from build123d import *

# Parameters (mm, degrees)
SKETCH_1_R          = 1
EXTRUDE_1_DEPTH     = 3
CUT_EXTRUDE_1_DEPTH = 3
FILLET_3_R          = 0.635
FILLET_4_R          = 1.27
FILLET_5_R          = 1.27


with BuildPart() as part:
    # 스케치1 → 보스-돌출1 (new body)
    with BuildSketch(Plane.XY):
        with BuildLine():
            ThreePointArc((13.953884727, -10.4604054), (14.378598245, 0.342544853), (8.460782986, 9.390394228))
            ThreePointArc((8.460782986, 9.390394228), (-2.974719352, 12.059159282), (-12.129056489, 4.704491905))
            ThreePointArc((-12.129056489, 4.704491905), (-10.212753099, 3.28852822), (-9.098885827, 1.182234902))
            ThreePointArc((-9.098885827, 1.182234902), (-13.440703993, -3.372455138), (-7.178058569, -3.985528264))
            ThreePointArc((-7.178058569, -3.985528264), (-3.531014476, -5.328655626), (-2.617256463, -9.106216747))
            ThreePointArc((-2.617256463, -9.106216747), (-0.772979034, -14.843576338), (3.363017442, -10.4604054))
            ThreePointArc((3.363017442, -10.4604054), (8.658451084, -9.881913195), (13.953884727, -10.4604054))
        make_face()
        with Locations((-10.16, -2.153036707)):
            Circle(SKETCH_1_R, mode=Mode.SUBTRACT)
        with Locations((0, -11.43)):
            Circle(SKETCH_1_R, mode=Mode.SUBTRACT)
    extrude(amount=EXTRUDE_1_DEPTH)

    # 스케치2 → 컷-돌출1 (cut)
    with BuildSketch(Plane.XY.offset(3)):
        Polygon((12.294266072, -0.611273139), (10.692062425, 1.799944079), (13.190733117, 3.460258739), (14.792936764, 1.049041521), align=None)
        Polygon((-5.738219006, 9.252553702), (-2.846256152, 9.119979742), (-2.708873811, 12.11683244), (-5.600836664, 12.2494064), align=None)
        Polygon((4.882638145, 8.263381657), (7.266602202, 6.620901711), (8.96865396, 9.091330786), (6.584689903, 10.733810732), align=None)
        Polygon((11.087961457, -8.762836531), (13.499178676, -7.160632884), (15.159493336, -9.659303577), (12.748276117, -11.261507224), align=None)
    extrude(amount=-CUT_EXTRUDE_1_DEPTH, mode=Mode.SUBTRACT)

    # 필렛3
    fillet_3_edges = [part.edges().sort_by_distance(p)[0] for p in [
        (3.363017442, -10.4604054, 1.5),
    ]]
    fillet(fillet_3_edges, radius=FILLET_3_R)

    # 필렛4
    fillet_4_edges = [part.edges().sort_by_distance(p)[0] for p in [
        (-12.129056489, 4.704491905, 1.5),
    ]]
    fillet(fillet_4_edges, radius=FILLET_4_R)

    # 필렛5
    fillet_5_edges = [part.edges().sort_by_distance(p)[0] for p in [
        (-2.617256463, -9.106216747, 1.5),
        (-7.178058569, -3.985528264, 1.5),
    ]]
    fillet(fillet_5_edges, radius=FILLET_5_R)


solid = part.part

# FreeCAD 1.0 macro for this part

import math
import FreeCAD as App
import Part
import Sketcher
from FreeCAD import Vector
Q = App.Units.Quantity


def edges_at(feature, points):
    """Names of the edges that pass closest to the given points."""
    edges = feature.Shape.Edges
    near = lambda p: min(range(len(edges)), key=lambda i: edges[i].distToShape(Part.Vertex(*p))[0])
    return sorted({f"Edge{near(p) + 1}" for p in points})

doc = App.newDocument("Part")
params = doc.addObject("Spreadsheet::Sheet", "Params")
for row, (alias, value) in enumerate([
    ("sketch1_diameter", "2 mm"),
    ("sketch1_radius", "3.5 mm"),
    ("pad1_length", "3 mm"),
    ("sketch2_length", "3 mm"),
    ("pocket1_length", "3 mm"),
    ("fillet_radius", "0.635 mm"),
    ("fillet2_radius", "1.27 mm"),
    ("fillet3_radius", "1.27 mm"),
], start=1):
    params.set(f"A{row}", alias)
    params.set(f"B{row}", "=" + value)
    params.setAlias(f"B{row}", alias)

body = doc.addObject("PartDesign::Body", "Body")

# Sketch on XY plane
sketch1 = body.newObject("Sketcher::SketchObject", "Sketch")
sketch1.AttachmentSupport = (doc.getObject("XY_Plane"), [""])
sketch1.MapMode = "FlatFace"
sketch1.addGeometry([
    Part.ArcOfCircle(Part.Circle(Vector(-2.7, -4.4, 0), Vector(0, 0, 1), 17.8), math.radians(-20), math.radians(51)),  # 0
    Part.ArcOfCircle(Part.Circle(Vector(0, -1, 0), Vector(0, 0, 1), 13.4), math.radians(51), math.radians(155)),  # 1
    Part.ArcOfCircle(Part.Circle(Vector(-14.3, -0.2, 0), Vector(0, 0, 1), 5.4), math.radians(15), math.radians(66)),  # 2
    Part.ArcOfCircle(Part.Circle(Vector(-10.2, -2.2, 0), Vector(0, 0, 1), 3.5), math.radians(72), math.radians(328)),  # 3
    Part.ArcOfCircle(Part.Circle(Vector(-6.6, -8.1, 0), Vector(0, 0, 1), 4.1), math.radians(-14), math.radians(98)),  # 4
    Part.ArcOfCircle(Part.Circle(Vector(0, -11.4, 0), Vector(0, 0, 1), 3.5), math.radians(138), math.radians(376)),  # 5
    Part.ArcOfCircle(Part.Circle(Vector(8.7, -34.4, 0), Vector(0, 0, 1), 24.5), math.radians(78), math.radians(102)),  # 6
    Part.Circle(Vector(0, -11.4, 0), Vector(0, 0, 1), 1),  # 7
    Part.Circle(Vector(-10.2, -2.2, 0), Vector(0, 0, 1), 1),  # 8
], False)
sketch1.addConstraint([
    Sketcher.Constraint("Tangent", 0, 2, 1, 1),
    Sketcher.Constraint("Coincident", 1, 2, 2, 2),
    Sketcher.Constraint("Coincident", 2, 1, 3, 1),
    Sketcher.Constraint("Coincident", 3, 2, 4, 2),
    Sketcher.Constraint("Coincident", 4, 1, 5, 1),
    Sketcher.Constraint("Coincident", 5, 2, 6, 2),
    Sketcher.Constraint("Coincident", 6, 1, 0, 1),
    Sketcher.Constraint("Coincident", 7, 3, 5, 3),
    Sketcher.Constraint("Coincident", 8, 3, 3, 3),
    Sketcher.Constraint("Equal", 3, 5),
    Sketcher.Constraint("Equal", 7, 8),
    Sketcher.Constraint("PointOnObject", 5, 3, -2),
    Sketcher.Constraint("Horizontal", 5, 2, 6, 1),
    Sketcher.Constraint("Diameter", 7, Q("2 mm")),
    Sketcher.Constraint("Radius", 3, Q("3.5 mm")),
    Sketcher.Constraint("DistanceX", 3, 3, -1, 1, Q("10.16 mm")),
    Sketcher.Constraint("DistanceY", 5, 3, -1, 1, Q("11.43 mm")),
    Sketcher.Constraint("Radius", 6, Q("24.526061 mm")),
    Sketcher.Constraint("Radius", 0, Q("17.761154 mm")),
    Sketcher.Constraint("Radius", 1, Q("13.414066 mm")),
    Sketcher.Constraint("Radius", 2, Q("5.363325 mm")),
    Sketcher.Constraint("Radius", 4, Q("4.126763 mm")),
    Sketcher.Constraint("DistanceX", 0, 3, 4, 1, Q("0.121999 mm")),
    Sketcher.Constraint("DistanceX", 1, 3, 0, 2, Q("8.4588 mm")),
    Sketcher.Constraint("DistanceX", 1, 2, 0, 3, Q("9.389801 mm")),
    Sketcher.Constraint("DistanceY", 1, 3, -1, 1, Q("1.020459 mm")),
    Sketcher.Constraint("DistanceX", 2, 3, -1, 1, Q("14.278559 mm")),
    Sketcher.Constraint("DistanceX", 4, 3, -1, 1, Q("6.612681 mm")),
    Sketcher.Constraint("DistanceY", 4, 3, -1, 1, Q("8.073378 mm")),
    Sketcher.Constraint("DistanceX", -1, 1, 6, 3, Q("8.658451 mm")),
    Sketcher.Constraint("DistanceX", 3, 2, -1, 1, Q("7.178059 mm")),
])
sketch1.setExpression("Constraints[13]", "Params.sketch1_diameter")
sketch1.setExpression("Constraints[14]", "Params.sketch1_radius")
pad1 = body.newObject("PartDesign::Pad", "Pad")
pad1.Profile = sketch1
pad1.setExpression("Length", "Params.pad1_length")

# Sketch on XY plane
sketch2 = body.newObject("Sketcher::SketchObject", "Sketch001")
sketch2.AttachmentSupport = (doc.getObject("XY_Plane"), [""])
sketch2.MapMode = "FlatFace"
sketch2.AttachmentOffset = App.Placement(Vector(0, 0, 3), App.Rotation())
sketch2.addGeometry([
    Part.LineSegment(Vector(10.7, 1.8, 0), Vector(12.3, -0.6, 0)),  # 0
    Part.LineSegment(Vector(12.3, -0.6, 0), Vector(14.8, 1, 0)),  # 1
    Part.LineSegment(Vector(14.8, 1, 0), Vector(13.2, 3.5, 0)),  # 2
    Part.LineSegment(Vector(13.2, 3.5, 0), Vector(10.7, 1.8, 0)),  # 3
    Part.LineSegment(Vector(-5.7, 9.3, 0), Vector(-2.8, 9.1, 0)),  # 4
    Part.LineSegment(Vector(-2.8, 9.1, 0), Vector(-2.7, 12.1, 0)),  # 5
    Part.LineSegment(Vector(-2.7, 12.1, 0), Vector(-5.6, 12.2, 0)),  # 6
    Part.LineSegment(Vector(-5.6, 12.2, 0), Vector(-5.7, 9.3, 0)),  # 7
    Part.LineSegment(Vector(4.9, 8.3, 0), Vector(7.3, 6.6, 0)),  # 8
    Part.LineSegment(Vector(7.3, 6.6, 0), Vector(9, 9.1, 0)),  # 9
    Part.LineSegment(Vector(9, 9.1, 0), Vector(6.6, 10.7, 0)),  # 10
    Part.LineSegment(Vector(6.6, 10.7, 0), Vector(4.9, 8.3, 0)),  # 11
    Part.LineSegment(Vector(13.5, -7.2, 0), Vector(11.1, -8.8, 0)),  # 12
    Part.LineSegment(Vector(11.1, -8.8, 0), Vector(12.7, -11.3, 0)),  # 13
    Part.LineSegment(Vector(12.7, -11.3, 0), Vector(15.2, -9.7, 0)),  # 14
    Part.LineSegment(Vector(15.2, -9.7, 0), Vector(13.5, -7.2, 0)),  # 15
], False)
sketch2.addConstraint([
    Sketcher.Constraint("Coincident", 0, 2, 1, 1),
    Sketcher.Constraint("Coincident", 1, 2, 2, 1),
    Sketcher.Constraint("Coincident", 2, 2, 3, 1),
    Sketcher.Constraint("Coincident", 3, 2, 0, 1),
    Sketcher.Constraint("Coincident", 4, 2, 5, 1),
    Sketcher.Constraint("Coincident", 5, 2, 6, 1),
    Sketcher.Constraint("Coincident", 6, 2, 7, 1),
    Sketcher.Constraint("Coincident", 7, 2, 4, 1),
    Sketcher.Constraint("Coincident", 8, 2, 9, 1),
    Sketcher.Constraint("Coincident", 9, 2, 10, 1),
    Sketcher.Constraint("Coincident", 10, 2, 11, 1),
    Sketcher.Constraint("Coincident", 11, 2, 8, 1),
    Sketcher.Constraint("Coincident", 12, 2, 13, 1),
    Sketcher.Constraint("Coincident", 13, 2, 14, 1),
    Sketcher.Constraint("Coincident", 14, 2, 15, 1),
    Sketcher.Constraint("Coincident", 15, 2, 12, 1),
    Sketcher.Constraint("Perpendicular", 0, 1),
    Sketcher.Constraint("Perpendicular", 1, 2),
    Sketcher.Constraint("Perpendicular", 2, 3),
    Sketcher.Constraint("Perpendicular", 4, 5),
    Sketcher.Constraint("Perpendicular", 5, 6),
    Sketcher.Constraint("Perpendicular", 6, 7),
    Sketcher.Constraint("Perpendicular", 8, 9),
    Sketcher.Constraint("Perpendicular", 9, 10),
    Sketcher.Constraint("Perpendicular", 10, 11),
    Sketcher.Constraint("Parallel", 3, 12),
    Sketcher.Constraint("Perpendicular", 12, 13),
    Sketcher.Constraint("Perpendicular", 13, 14),
    Sketcher.Constraint("Perpendicular", 14, 15),
    Sketcher.Constraint("Equal", 2, 4),
    Sketcher.Constraint("Equal", 3, 5),
    Sketcher.Constraint("Equal", 6, 8),
    Sketcher.Constraint("Equal", 7, 9),
    Sketcher.Constraint("Equal", 10, 12),
    Sketcher.Constraint("Equal", 11, 13),
    Sketcher.Constraint("Distance", 1, Q("3 mm")),
    Sketcher.Constraint("Distance", 0, Q("2.895 mm")),
    Sketcher.Constraint("DistanceY", -1, 1, 8, 2, Q("6.620902 mm")),
    Sketcher.Constraint("DistanceX", 6, 2, 3, 2, Q("16.292899 mm")),
    Sketcher.Constraint("DistanceY", 11, 2, 4, 2, Q("0.856598 mm")),
    Sketcher.Constraint("DistanceX", 3, 2, 12, 2, Q("0.395899 mm")),
    Sketcher.Constraint("DistanceY", -1, 1, 1, 2, Q("1.049042 mm")),
    Sketcher.Constraint("DistanceY", -1, 1, 2, 2, Q("3.460259 mm")),
    Sketcher.Constraint("DistanceY", -1, 1, 4, 2, Q("9.11998 mm")),
    Sketcher.Constraint("DistanceX", 7, 2, -1, 1, Q("5.738219 mm")),
    Sketcher.Constraint("DistanceX", -1, 1, 10, 2, Q("6.58469 mm")),
    Sketcher.Constraint("DistanceX", -1, 1, 12, 2, Q("11.087961 mm")),
    Sketcher.Constraint("DistanceY", 12, 2, 1, 2, Q("9.811878 mm")),
])
sketch2.setExpression("Constraints[35]", "Params.sketch2_length")
pocket1 = body.newObject("PartDesign::Pocket", "Pocket")
pocket1.Profile = sketch2
pocket1.setExpression("Length", "Params.pocket1_length")
doc.recompute()

fillet = body.newObject("PartDesign::Fillet", "Fillet")
fillet.Base = (pocket1, edges_at(pocket1, [(3.363, -10.46, 1.5)]))
fillet.setExpression("Radius", "Params.fillet_radius")
doc.recompute()

fillet2 = body.newObject("PartDesign::Fillet", "Fillet001")
fillet2.Base = (fillet, edges_at(fillet, [(-12.129, 4.704, 1.5)]))
fillet2.setExpression("Radius", "Params.fillet2_radius")
doc.recompute()

fillet3 = body.newObject("PartDesign::Fillet", "Fillet002")
fillet3.Base = (fillet2, edges_at(fillet2, [(-2.617, -9.106, 1.5), (-7.178, -3.986, 1.5)]))
fillet3.setExpression("Radius", "Params.fillet3_radius")

doc.recompute()
